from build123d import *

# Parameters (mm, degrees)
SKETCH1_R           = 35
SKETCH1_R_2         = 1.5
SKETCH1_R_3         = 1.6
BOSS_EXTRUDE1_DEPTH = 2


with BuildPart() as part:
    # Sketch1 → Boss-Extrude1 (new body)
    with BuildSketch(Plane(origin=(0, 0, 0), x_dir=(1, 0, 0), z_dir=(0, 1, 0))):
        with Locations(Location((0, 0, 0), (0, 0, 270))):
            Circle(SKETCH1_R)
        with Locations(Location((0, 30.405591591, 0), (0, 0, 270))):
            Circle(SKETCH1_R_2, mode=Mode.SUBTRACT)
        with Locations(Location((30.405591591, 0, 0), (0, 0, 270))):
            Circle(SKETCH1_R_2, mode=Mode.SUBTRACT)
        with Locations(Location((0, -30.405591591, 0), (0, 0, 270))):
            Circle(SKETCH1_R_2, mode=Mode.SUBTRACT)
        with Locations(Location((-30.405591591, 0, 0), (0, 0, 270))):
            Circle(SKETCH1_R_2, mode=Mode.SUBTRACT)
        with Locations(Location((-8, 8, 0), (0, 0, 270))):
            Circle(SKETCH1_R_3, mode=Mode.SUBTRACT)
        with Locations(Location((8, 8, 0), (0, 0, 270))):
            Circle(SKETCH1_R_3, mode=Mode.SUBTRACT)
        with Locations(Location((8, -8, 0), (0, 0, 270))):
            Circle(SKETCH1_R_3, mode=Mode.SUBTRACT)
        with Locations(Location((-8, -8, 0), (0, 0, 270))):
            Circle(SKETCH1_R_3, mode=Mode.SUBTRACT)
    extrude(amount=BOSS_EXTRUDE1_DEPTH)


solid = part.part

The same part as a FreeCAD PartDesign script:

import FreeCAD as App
import Part
import Sketcher

V = App.Vector

doc = App.newDocument("Part")
body = doc.addObject("PartDesign::Body", "Body")

# Sketch on XZ plane
sketch1 = body.newObject("Sketcher::SketchObject", "Sketch")
sketch1.AttachmentSupport = (doc.getObject("XZ_Plane"), [""])
sketch1.MapMode = "FlatFace"
sketch1.addGeometry(Part.Circle(V(0, 0, 0), V(0, 0, 1), 35), False)
sketch1.addGeometry(Part.Circle(V(0, -30.4, 0), V(0, 0, 1), 1.5), False)
sketch1.addGeometry(Part.Circle(V(-8, -8, 0), V(0, 0, 1), 1.6), False)
sketch1.addGeometry(Part.Circle(V(-30.4, 0, 0), V(0, 0, 1), 1.5), False)
sketch1.addGeometry(Part.Circle(V(-8, 8, 0), V(0, 0, 1), 1.6), False)
sketch1.addGeometry(Part.Circle(V(8, -8, 0), V(0, 0, 1), 1.6), False)
sketch1.addGeometry(Part.Circle(V(30.4, 0, 0), V(0, 0, 1), 1.5), False)
sketch1.addGeometry(Part.Circle(V(8, 8, 0), V(0, 0, 1), 1.6), False)
sketch1.addGeometry(Part.Circle(V(0, 30.4, 0), V(0, 0, 1), 1.5), False)
sketch1.addConstraint(Sketcher.Constraint("Coincident", 0, 3, -1, 1))
sketch1.addConstraint(Sketcher.Constraint("Equal", 1, 3))
sketch1.addConstraint(Sketcher.Constraint("Equal", 2, 4))
sketch1.addConstraint(Sketcher.Constraint("Equal", 4, 5))
sketch1.addConstraint(Sketcher.Constraint("Equal", 3, 6))
sketch1.addConstraint(Sketcher.Constraint("Equal", 5, 7))
sketch1.addConstraint(Sketcher.Constraint("Equal", 6, 8))
sketch1.addConstraint(Sketcher.Constraint("Symmetric", 4, 3, 5, 3, -1, 1))
sketch1.addConstraint(Sketcher.Constraint("Symmetric", 3, 3, 6, 3, -1, 1))
sketch1.addConstraint(Sketcher.Constraint("Symmetric", 2, 3, 7, 3, -1, 1))
sketch1.addConstraint(Sketcher.Constraint("Symmetric", 1, 3, 8, 3, -1, 1))
sketch1.addConstraint(Sketcher.Constraint("Symmetric", 2, 3, 5, 3, -2))
sketch1.addConstraint(Sketcher.Constraint("PointOnObject", 1, 3, -2))
sketch1.addConstraint(Sketcher.Constraint("PointOnObject", 3, 3, -1))
sketch1.addConstraint(Sketcher.Constraint("Diameter", 0, 70.0))
sketch1.addConstraint(Sketcher.Constraint("Diameter", 1, 3.0))
sketch1.addConstraint(Sketcher.Constraint("Diameter", 2, 3.2))
sketch1.addConstraint(Sketcher.Constraint("DistanceX", 2, 3, -1, 1, 8.0))
sketch1.addConstraint(Sketcher.Constraint("DistanceY", 2, 3, -1, 1, 8.0))
sketch1.addConstraint(Sketcher.Constraint("DistanceY", 1, 3, -1, 1, 30.405592))
sketch1.addConstraint(Sketcher.Constraint("DistanceX", 3, 3, -1, 1, 30.405592))
pad1 = body.newObject("PartDesign::Pad", "Pad")
pad1.Profile = sketch1
pad1.Length = 2
pad1.Reversed = True

doc.recompute()
